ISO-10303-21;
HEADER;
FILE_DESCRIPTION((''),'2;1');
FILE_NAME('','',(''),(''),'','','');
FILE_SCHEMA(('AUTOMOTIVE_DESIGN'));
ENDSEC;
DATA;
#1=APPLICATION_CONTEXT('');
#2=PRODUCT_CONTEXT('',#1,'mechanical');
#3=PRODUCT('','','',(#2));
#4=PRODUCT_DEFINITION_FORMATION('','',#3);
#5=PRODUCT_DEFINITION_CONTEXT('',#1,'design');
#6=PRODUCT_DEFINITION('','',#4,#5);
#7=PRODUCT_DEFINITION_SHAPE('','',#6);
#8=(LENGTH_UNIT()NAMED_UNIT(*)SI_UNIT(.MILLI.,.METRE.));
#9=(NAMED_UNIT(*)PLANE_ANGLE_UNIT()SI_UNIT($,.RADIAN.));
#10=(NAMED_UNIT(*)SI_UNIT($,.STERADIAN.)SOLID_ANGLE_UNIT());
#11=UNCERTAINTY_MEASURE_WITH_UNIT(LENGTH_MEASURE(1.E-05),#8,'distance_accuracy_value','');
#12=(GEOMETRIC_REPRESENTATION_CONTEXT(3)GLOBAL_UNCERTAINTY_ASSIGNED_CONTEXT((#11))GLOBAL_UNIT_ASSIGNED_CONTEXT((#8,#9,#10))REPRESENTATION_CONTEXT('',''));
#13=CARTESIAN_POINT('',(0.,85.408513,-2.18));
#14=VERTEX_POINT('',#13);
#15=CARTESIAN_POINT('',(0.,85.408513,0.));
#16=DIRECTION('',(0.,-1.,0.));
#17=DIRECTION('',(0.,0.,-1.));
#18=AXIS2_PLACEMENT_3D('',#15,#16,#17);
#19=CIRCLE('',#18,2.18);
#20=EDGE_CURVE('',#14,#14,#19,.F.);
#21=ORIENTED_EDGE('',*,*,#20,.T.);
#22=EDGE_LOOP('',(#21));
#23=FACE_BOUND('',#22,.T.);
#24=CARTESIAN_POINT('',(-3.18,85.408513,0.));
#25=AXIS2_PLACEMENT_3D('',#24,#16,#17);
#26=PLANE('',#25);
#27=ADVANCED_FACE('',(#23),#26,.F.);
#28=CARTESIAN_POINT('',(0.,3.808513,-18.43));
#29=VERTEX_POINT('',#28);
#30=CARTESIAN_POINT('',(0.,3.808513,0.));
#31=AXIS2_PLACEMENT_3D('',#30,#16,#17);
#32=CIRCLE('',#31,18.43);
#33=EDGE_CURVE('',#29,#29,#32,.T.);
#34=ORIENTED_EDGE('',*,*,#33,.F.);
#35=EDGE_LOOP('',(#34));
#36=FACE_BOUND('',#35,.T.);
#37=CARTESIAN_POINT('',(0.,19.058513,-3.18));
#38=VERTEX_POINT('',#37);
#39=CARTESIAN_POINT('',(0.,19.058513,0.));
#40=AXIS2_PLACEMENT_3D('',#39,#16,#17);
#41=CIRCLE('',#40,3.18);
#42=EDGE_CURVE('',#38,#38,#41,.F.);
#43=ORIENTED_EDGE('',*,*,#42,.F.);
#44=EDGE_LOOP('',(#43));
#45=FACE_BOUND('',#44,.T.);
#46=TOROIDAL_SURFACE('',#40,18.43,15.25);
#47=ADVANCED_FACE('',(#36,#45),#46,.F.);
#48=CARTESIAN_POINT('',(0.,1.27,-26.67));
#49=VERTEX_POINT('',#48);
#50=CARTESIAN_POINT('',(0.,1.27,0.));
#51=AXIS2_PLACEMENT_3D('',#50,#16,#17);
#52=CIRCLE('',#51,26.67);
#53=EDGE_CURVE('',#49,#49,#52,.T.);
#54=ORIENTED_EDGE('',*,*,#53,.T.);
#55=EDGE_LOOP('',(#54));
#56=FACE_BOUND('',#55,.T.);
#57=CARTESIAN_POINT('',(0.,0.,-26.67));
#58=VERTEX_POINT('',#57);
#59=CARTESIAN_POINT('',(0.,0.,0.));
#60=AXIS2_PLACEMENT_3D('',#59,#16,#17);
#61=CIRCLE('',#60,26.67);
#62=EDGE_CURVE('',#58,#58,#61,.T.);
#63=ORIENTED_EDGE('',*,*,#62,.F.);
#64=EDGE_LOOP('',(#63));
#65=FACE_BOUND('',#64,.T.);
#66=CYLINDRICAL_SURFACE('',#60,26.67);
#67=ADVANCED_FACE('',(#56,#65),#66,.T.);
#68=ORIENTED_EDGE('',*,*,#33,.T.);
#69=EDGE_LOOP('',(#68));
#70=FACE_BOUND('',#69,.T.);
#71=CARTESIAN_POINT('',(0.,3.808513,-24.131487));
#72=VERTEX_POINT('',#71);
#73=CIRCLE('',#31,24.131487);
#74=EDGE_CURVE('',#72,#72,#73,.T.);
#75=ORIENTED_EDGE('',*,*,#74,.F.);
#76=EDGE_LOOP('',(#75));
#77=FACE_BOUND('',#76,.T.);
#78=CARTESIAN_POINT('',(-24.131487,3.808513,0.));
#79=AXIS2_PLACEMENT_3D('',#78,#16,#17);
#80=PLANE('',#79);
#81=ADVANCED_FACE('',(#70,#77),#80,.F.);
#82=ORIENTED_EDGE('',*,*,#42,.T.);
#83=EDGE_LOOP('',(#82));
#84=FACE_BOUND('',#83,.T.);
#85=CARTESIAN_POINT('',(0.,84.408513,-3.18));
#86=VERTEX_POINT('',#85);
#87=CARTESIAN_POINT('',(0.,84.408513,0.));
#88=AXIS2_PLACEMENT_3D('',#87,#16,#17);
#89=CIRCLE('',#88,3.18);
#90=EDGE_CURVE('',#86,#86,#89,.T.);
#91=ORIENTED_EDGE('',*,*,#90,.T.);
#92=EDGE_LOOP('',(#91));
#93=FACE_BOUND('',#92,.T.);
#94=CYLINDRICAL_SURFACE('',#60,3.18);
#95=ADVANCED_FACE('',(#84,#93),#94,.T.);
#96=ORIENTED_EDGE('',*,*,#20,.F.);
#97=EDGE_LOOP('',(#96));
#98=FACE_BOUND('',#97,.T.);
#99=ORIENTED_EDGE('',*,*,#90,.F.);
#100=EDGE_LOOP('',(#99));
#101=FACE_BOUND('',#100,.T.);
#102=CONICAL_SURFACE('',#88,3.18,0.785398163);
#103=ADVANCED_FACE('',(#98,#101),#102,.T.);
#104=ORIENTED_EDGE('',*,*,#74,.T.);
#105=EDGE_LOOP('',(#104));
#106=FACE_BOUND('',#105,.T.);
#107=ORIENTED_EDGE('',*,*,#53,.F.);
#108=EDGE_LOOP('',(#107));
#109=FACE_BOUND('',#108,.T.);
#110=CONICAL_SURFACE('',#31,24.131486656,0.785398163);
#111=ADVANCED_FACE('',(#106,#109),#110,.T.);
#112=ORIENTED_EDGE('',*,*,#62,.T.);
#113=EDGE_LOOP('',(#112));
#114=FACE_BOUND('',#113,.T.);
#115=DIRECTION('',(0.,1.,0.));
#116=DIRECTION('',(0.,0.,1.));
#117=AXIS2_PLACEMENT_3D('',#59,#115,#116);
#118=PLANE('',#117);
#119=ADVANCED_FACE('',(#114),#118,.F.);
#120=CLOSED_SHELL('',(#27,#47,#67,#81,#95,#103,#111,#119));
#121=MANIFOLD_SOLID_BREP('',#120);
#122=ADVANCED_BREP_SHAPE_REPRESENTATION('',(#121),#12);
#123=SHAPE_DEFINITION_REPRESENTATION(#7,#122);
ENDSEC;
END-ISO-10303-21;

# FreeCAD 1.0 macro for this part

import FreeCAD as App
import Part
import Sketcher
from FreeCAD import Vector
Q = App.Units.Quantity


def edges_at(feature, points):
    """Names of the edges that pass closest to the given points."""
    edges = feature.Shape.Edges
    near = lambda p: min(range(len(edges)), key=lambda i: edges[i].distToShape(Part.Vertex(*p))[0])
    return sorted({f"Edge{near(p) + 1}" for p in points})

doc = App.newDocument("Part")
params = doc.addObject("Spreadsheet::Sheet", "Params")
for row, (alias, value) in enumerate([
    ("sketch1_height", "81.6 mm"),
    ("sketch1_width", "26.67 mm"),
    ("sketch1_width2", "3.18 mm"),
    ("sketch1_height2", "1.27 mm"),
    ("sketch1_length", "3.59 mm"),
    ("revolution_angle", "360 deg"),
    ("fillet_radius", "15.25 mm"),
    ("chamfer_size", "1 mm"),
], start=1):
    params.set(f"A{row}", alias)
    params.set(f"B{row}", "=" + value)
    params.setAlias(f"B{row}", alias)

body = doc.addObject("PartDesign::Body", "Body")

# Sketch on XY plane
sketch1 = body.newObject("Sketcher::SketchObject", "Sketch")
sketch1.AttachmentSupport = (doc.getObject("XY_Plane"), [""])
sketch1.MapMode = "FlatFace"
sketch1.addGeometry([
    Part.LineSegment(Vector(-26.7, 0, 0), Vector(0, 0, 0)),  # 0
    Part.LineSegment(Vector(0, 0, 0), Vector(0, 85.4, 0)),  # 1
    Part.LineSegment(Vector(0, 85.4, 0), Vector(-3.2, 85.4, 0)),  # 2
    Part.LineSegment(Vector(-3.2, 85.4, 0), Vector(-3.2, 3.8, 0)),  # 3
    Part.LineSegment(Vector(-3.2, 3.8, 0), Vector(-24.1, 3.8, 0)),  # 4
    Part.LineSegment(Vector(-24.1, 3.8, 0), Vector(-26.7, 1.3, 0)),  # 5
    Part.LineSegment(Vector(-26.7, 1.3, 0), Vector(-26.7, 0, 0)),  # 6
], False)
sketch1.addConstraint([
    Sketcher.Constraint("Coincident", 0, 2, 1, 1),
    Sketcher.Constraint("Coincident", 1, 2, 2, 1),
    Sketcher.Constraint("Coincident", 2, 2, 3, 1),
    Sketcher.Constraint("Coincident", 3, 2, 4, 1),
    Sketcher.Constraint("Coincident", 4, 2, 5, 1),
    Sketcher.Constraint("Coincident", 5, 2, 6, 1),
    Sketcher.Constraint("Coincident", 6, 2, 0, 1),
    Sketcher.Constraint("Horizontal", 0),
    Sketcher.Constraint("Vertical", 1),
    Sketcher.Constraint("Horizontal", 2),
    Sketcher.Constraint("Vertical", 3),
    Sketcher.Constraint("Horizontal", 4),
    Sketcher.Constraint("Vertical", 6),
    Sketcher.Constraint("Coincident", 0, 2, -1, 1),
    Sketcher.Constraint("Angle", 5, Q("-135 deg")),
    Sketcher.Constraint("DistanceY", 3, 2, 3, 1, Q("81.6 mm")),
    Sketcher.Constraint("DistanceX", 0, 1, 0, 2, Q("26.67 mm")),
    Sketcher.Constraint("DistanceX", 2, 2, 2, 1, Q("3.18 mm")),
    Sketcher.Constraint("DistanceY", 6, 2, 6, 1, Q("1.27 mm")),
    Sketcher.Constraint("Distance", 5, Q("3.59 mm")),
])
sketch1.setExpression("Constraints[15]", "Params.sketch1_height")
sketch1.setExpression("Constraints[16]", "Params.sketch1_width")
sketch1.setExpression("Constraints[17]", "Params.sketch1_width2")
sketch1.setExpression("Constraints[18]", "Params.sketch1_height2")
sketch1.setExpression("Constraints[19]", "Params.sketch1_length")
revolution = body.newObject("PartDesign::Revolution", "Revolution")
revolution.Profile = sketch1
revolution.ReferenceAxis = (sketch1, ["V_Axis"])
revolution.setExpression("Angle", "Params.revolution_angle")
doc.recompute()

fillet = body.newObject("PartDesign::Fillet", "Fillet")
fillet.Base = (revolution, edges_at(revolution, [(0, 3.809, 3.18)]))
fillet.setExpression("Radius", "Params.fillet_radius")
doc.recompute()

chamfer = body.newObject("PartDesign::Chamfer", "Chamfer")
chamfer.Base = (fillet, edges_at(fillet, [(0, 85.409, 3.18)]))
chamfer.setExpression("Size", "Params.chamfer_size")

doc.recompute()
